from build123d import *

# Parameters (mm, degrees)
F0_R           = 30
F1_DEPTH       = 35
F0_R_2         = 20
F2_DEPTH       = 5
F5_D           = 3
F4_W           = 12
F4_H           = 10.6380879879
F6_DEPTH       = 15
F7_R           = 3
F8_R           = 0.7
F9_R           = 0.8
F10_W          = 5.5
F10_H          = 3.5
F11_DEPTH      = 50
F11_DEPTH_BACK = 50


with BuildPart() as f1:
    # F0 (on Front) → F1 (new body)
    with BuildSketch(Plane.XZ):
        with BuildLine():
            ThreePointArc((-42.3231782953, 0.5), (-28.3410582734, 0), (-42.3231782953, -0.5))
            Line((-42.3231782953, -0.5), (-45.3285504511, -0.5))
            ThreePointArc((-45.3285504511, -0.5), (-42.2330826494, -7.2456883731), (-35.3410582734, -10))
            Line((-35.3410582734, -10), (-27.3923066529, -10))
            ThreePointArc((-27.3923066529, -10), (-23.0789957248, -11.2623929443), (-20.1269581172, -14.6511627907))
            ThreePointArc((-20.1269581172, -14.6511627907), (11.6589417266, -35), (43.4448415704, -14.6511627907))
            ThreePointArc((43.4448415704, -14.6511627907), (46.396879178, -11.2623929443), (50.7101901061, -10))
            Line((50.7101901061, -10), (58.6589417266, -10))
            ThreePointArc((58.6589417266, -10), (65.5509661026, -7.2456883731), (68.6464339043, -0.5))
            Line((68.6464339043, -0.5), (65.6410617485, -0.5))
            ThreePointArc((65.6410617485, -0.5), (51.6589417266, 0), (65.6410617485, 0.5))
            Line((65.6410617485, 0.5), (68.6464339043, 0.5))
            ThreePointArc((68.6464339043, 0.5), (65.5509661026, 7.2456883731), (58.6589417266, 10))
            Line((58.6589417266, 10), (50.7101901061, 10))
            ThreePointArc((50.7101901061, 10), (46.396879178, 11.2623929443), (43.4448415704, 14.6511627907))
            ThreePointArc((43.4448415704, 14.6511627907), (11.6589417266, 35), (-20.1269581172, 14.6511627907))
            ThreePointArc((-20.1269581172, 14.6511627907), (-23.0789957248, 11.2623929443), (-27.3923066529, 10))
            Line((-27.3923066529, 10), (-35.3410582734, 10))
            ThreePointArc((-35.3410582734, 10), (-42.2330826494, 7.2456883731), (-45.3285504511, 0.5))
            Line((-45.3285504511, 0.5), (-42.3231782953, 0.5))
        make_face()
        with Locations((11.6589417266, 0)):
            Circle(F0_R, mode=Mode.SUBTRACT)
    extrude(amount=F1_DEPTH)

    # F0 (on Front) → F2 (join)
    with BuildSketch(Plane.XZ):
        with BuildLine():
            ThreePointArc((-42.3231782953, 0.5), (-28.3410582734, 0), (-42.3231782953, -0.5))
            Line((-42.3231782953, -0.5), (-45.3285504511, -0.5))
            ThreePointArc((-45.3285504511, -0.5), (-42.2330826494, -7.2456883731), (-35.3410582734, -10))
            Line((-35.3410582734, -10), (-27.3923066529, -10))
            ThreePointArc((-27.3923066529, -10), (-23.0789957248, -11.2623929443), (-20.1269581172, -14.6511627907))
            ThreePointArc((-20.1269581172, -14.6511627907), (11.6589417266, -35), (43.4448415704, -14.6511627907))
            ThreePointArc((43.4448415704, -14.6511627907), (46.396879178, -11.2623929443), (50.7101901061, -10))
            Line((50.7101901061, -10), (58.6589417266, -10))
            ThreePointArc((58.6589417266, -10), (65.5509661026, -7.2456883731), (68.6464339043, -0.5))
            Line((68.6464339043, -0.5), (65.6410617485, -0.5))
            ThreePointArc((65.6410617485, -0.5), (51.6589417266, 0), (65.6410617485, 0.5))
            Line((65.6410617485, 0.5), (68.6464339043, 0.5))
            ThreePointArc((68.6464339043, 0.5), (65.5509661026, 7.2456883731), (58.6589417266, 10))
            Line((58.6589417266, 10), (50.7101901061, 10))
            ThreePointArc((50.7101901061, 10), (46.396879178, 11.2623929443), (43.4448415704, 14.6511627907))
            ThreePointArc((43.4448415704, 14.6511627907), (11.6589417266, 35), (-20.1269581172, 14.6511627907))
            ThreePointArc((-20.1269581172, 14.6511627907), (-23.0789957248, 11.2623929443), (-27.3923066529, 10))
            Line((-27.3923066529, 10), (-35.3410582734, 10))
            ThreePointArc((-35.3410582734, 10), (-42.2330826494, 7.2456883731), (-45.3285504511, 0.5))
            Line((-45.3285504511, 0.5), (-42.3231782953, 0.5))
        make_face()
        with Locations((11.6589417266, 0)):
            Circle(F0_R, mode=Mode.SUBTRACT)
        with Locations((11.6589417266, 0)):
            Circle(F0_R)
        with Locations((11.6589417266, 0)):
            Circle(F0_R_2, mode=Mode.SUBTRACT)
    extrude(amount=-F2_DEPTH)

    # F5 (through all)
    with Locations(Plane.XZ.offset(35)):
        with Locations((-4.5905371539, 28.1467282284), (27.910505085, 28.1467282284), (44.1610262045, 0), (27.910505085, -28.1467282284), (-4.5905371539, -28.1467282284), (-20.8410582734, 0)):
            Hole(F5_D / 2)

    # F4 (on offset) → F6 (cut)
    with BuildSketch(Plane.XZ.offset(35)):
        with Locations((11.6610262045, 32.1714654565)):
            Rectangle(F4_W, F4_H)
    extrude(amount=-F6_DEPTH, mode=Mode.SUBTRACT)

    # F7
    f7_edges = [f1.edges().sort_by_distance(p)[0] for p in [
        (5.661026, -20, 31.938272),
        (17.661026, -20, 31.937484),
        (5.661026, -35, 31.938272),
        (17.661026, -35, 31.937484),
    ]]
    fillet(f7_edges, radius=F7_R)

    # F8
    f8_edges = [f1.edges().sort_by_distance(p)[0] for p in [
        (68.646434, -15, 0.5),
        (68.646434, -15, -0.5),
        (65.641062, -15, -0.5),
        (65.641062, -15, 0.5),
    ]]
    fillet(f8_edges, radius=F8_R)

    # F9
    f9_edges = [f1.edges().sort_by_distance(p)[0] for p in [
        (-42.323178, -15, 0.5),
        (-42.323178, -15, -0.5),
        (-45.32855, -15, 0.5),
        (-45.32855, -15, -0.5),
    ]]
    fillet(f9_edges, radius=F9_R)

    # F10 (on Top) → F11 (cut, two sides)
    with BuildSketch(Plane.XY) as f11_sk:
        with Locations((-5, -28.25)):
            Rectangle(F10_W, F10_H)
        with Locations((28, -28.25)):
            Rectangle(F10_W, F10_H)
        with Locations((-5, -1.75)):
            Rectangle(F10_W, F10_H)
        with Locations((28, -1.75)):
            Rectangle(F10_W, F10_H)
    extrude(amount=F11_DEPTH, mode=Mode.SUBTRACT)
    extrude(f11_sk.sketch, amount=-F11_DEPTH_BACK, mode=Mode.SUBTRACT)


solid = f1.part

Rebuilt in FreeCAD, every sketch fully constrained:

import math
import FreeCAD as App
import Part
import Sketcher

V = App.Vector


def edges_at(feature, points):
    """Names of the edges that pass closest to the given points."""
    edges = feature.Shape.Edges
    near = lambda p: min(range(len(edges)), key=lambda i: edges[i].distToShape(Part.Vertex(*p))[0])
    return sorted({f"Edge{near(p) + 1}" for p in points})


def add_polygon(sketch, points):
    """Adds a closed chain of lines whose ends are joined by coincident constraints."""
    first, n = sketch.GeometryCount, len(points)
    for a, b in zip(points, points[1:] + points[:1]):
        sketch.addGeometry(Part.LineSegment(App.Vector(*a, 0), App.Vector(*b, 0)), False)
    for i in range(n):
        sketch.addConstraint(Sketcher.Constraint("Coincident", first + i, 2, first + (i + 1) % n, 1))

doc = App.newDocument("Part")
body = doc.addObject("PartDesign::Body", "Body")

# Sketch on XZ plane
sketch1 = doc.addObject("Sketcher::SketchObject", "Sketch")
body.addObject(sketch1)
sketch1.AttachmentSupport = (doc.XZ_Plane, [""])
sketch1.MapMode = "FlatFace"
sketch1.addGeometry(Part.ArcOfCircle(Part.Circle(V(-35.341058, 0, 0), V(0, 0, 1), 7), math.radians(-175.903956), math.radians(175.903956)), False)
sketch1.addGeometry(Part.LineSegment(V(-42.323178, -0.5, 0), V(-45.32855, -0.5, 0)), False)
sketch1.addGeometry(Part.ArcOfCircle(Part.Circle(V(-35.341058, 0, 0), V(0, 0, 1), 10), math.radians(-177.134016), math.radians(-90)), False)
sketch1.addGeometry(Part.LineSegment(V(-35.341058, -10, 0), V(-27.392307, -10, 0)), False)
sketch1.addGeometry(Part.ArcOfCircle(Part.Circle(V(-27.392307, -18, 0), V(0, 0, 1), 8), math.radians(24.746525), math.radians(90)), False)
sketch1.addGeometry(Part.ArcOfCircle(Part.Circle(V(11.658942, 0, 0), V(0, 0, 1), 35), math.radians(-155.253475), math.radians(-24.746525)), False)
sketch1.addGeometry(Part.ArcOfCircle(Part.Circle(V(50.71019, -18, 0), V(0, 0, 1), 8), math.radians(90), math.radians(155.253475)), False)
sketch1.addGeometry(Part.LineSegment(V(50.71019, -10, 0), V(58.658942, -10, 0)), False)
sketch1.addGeometry(Part.ArcOfCircle(Part.Circle(V(58.658942, 0, 0), V(0, 0, 1), 10), math.radians(-90), math.radians(-2.865984)), False)
sketch1.addGeometry(Part.LineSegment(V(68.646434, -0.5, 0), V(65.641062, -0.5, 0)), False)
sketch1.addGeometry(Part.ArcOfCircle(Part.Circle(V(58.658942, 0, 0), V(0, 0, 1), 7), math.radians(4.096044), math.radians(355.903956)), False)
sketch1.addGeometry(Part.LineSegment(V(65.641062, 0.5, 0), V(68.646434, 0.5, 0)), False)
sketch1.addGeometry(Part.ArcOfCircle(Part.Circle(V(58.658942, 0, 0), V(0, 0, 1), 10), math.radians(2.865984), math.radians(90)), False)
sketch1.addGeometry(Part.LineSegment(V(58.658942, 10, 0), V(50.71019, 10, 0)), False)
sketch1.addGeometry(Part.ArcOfCircle(Part.Circle(V(50.71019, 18, 0), V(0, 0, 1), 8), math.radians(-155.253475), math.radians(-90)), False)
sketch1.addGeometry(Part.ArcOfCircle(Part.Circle(V(11.658942, 0, 0), V(0, 0, 1), 35), math.radians(24.746525), math.radians(155.253475)), False)
sketch1.addGeometry(Part.ArcOfCircle(Part.Circle(V(-27.392307, 18, 0), V(0, 0, 1), 8), math.radians(-90), math.radians(-24.746525)), False)
sketch1.addGeometry(Part.LineSegment(V(-27.392307, 10, 0), V(-35.341058, 10, 0)), False)
sketch1.addGeometry(Part.ArcOfCircle(Part.Circle(V(-35.341058, 0, 0), V(0, 0, 1), 10), math.radians(90), math.radians(177.134016)), False)
sketch1.addGeometry(Part.LineSegment(V(-45.32855, 0.5, 0), V(-42.323178, 0.5, 0)), False)
sketch1.addGeometry(Part.Circle(V(11.658942, 0, 0), V(0, 0, 1), 30), False)
sketch1.addConstraint(Sketcher.Constraint("Coincident", 0, 1, 1, 1))
sketch1.addConstraint(Sketcher.Constraint("Coincident", 1, 2, 2, 1))
sketch1.addConstraint(Sketcher.Constraint("Tangent", 2, 2, 3, 1))
sketch1.addConstraint(Sketcher.Constraint("Tangent", 3, 2, 4, 2))
sketch1.addConstraint(Sketcher.Constraint("Tangent", 4, 1, 5, 1))
sketch1.addConstraint(Sketcher.Constraint("Tangent", 5, 2, 6, 2))
sketch1.addConstraint(Sketcher.Constraint("Tangent", 6, 1, 7, 1))
sketch1.addConstraint(Sketcher.Constraint("Tangent", 7, 2, 8, 1))
sketch1.addConstraint(Sketcher.Constraint("Coincident", 8, 2, 9, 1))
sketch1.addConstraint(Sketcher.Constraint("Coincident", 9, 2, 10, 2))
sketch1.addConstraint(Sketcher.Constraint("Coincident", 10, 1, 11, 1))
sketch1.addConstraint(Sketcher.Constraint("Coincident", 11, 2, 12, 1))
sketch1.addConstraint(Sketcher.Constraint("Tangent", 12, 2, 13, 1))
sketch1.addConstraint(Sketcher.Constraint("Tangent", 13, 2, 14, 2))
sketch1.addConstraint(Sketcher.Constraint("Tangent", 14, 1, 15, 1))
sketch1.addConstraint(Sketcher.Constraint("Tangent", 15, 2, 16, 2))
sketch1.addConstraint(Sketcher.Constraint("Tangent", 16, 1, 17, 1))
sketch1.addConstraint(Sketcher.Constraint("Tangent", 17, 2, 18, 1))
sketch1.addConstraint(Sketcher.Constraint("Coincident", 18, 2, 19, 1))
sketch1.addConstraint(Sketcher.Constraint("Coincident", 19, 2, 0, 2))
sketch1.addConstraint(Sketcher.Constraint("Horizontal", 1))
sketch1.addConstraint(Sketcher.Constraint("Horizontal", 3))
sketch1.addConstraint(Sketcher.Constraint("Horizontal", 7))
sketch1.addConstraint(Sketcher.Constraint("Horizontal", 9))
sketch1.addConstraint(Sketcher.Constraint("Horizontal", 11))
sketch1.addConstraint(Sketcher.Constraint("Horizontal", 13))
sketch1.addConstraint(Sketcher.Constraint("Horizontal", 17))
sketch1.addConstraint(Sketcher.Constraint("Horizontal", 19))
sketch1.addConstraint(Sketcher.Constraint("Coincident", 2, 3, 0, 3))
sketch1.addConstraint(Sketcher.Constraint("Coincident", 10, 3, 8, 3))
sketch1.addConstraint(Sketcher.Constraint("Coincident", 12, 3, 8, 3))
sketch1.addConstraint(Sketcher.Constraint("Coincident", 15, 3, 5, 3))
sketch1.addConstraint(Sketcher.Constraint("Coincident", 18, 3, 0, 3))
sketch1.addConstraint(Sketcher.Constraint("Coincident", 20, 3, 5, 3))
sketch1.addConstraint(Sketcher.Constraint("Equal", 4, 6))
sketch1.addConstraint(Sketcher.Constraint("Equal", 2, 8))
sketch1.addConstraint(Sketcher.Constraint("Equal", 0, 10))
sketch1.addConstraint(Sketcher.Constraint("Equal", 8, 12))
sketch1.addConstraint(Sketcher.Constraint("Equal", 6, 14))
sketch1.addConstraint(Sketcher.Constraint("Equal", 5, 15))
sketch1.addConstraint(Sketcher.Constraint("Equal", 14, 16))
sketch1.addConstraint(Sketcher.Constraint("Equal", 12, 18))
sketch1.addConstraint(Sketcher.Constraint("Symmetric", 6, 3, 14, 3, -1))
sketch1.addConstraint(Sketcher.Constraint("Symmetric", 1, 2, 18, 2, -1))
sketch1.addConstraint(Sketcher.Constraint("Horizontal", 1, 2, 8, 2))
sketch1.addConstraint(Sketcher.Constraint("Horizontal", 11, 2, 18, 2))
sketch1.addConstraint(Sketcher.Constraint("Equal", 3, 7))
sketch1.addConstraint(Sketcher.Constraint("Diameter", 20, 60.0))
sketch1.addConstraint(Sketcher.Constraint("Radius", 0, 7.0))
sketch1.addConstraint(Sketcher.Constraint("Radius", 2, 10.0))
sketch1.addConstraint(Sketcher.Constraint("Radius", 4, 8.0))
sketch1.addConstraint(Sketcher.Constraint("Radius", 5, 35.0))
sketch1.addConstraint(Sketcher.Constraint("DistanceX", 0, 3, 5, 3, 47.0))
sketch1.addConstraint(Sketcher.Constraint("DistanceY", 9, 2, 10, 1, 1.0))
sketch1.addConstraint(Sketcher.Constraint("DistanceX", 0, 3, -1, 1, 35.341058))
pad1 = doc.addObject("PartDesign::Pad", "Pad")
body.addObject(pad1)
pad1.Profile = sketch1
pad1.Length = 35

# Sketch on XZ plane
sketch2 = doc.addObject("Sketcher::SketchObject", "Sketch001")
body.addObject(sketch2)
sketch2.AttachmentSupport = (doc.XZ_Plane, [""])
sketch2.MapMode = "FlatFace"
sketch2.addGeometry(Part.ArcOfCircle(Part.Circle(V(-35.341058, 0, 0), V(0, 0, 1), 7), math.radians(-175.903956), math.radians(175.903956)), False)
sketch2.addGeometry(Part.LineSegment(V(-42.323178, -0.5, 0), V(-45.32855, -0.5, 0)), False)
sketch2.addGeometry(Part.ArcOfCircle(Part.Circle(V(-35.341058, 0, 0), V(0, 0, 1), 10), math.radians(-177.134016), math.radians(-90)), False)
sketch2.addGeometry(Part.LineSegment(V(-35.341058, -10, 0), V(-27.392307, -10, 0)), False)
sketch2.addGeometry(Part.ArcOfCircle(Part.Circle(V(-27.392307, -18, 0), V(0, 0, 1), 8), math.radians(24.746525), math.radians(90)), False)
sketch2.addGeometry(Part.ArcOfCircle(Part.Circle(V(11.658942, 0, 0), V(0, 0, 1), 35), math.radians(-155.253475), math.radians(-24.746525)), False)
sketch2.addGeometry(Part.ArcOfCircle(Part.Circle(V(50.71019, -18, 0), V(0, 0, 1), 8), math.radians(90), math.radians(155.253475)), False)
sketch2.addGeometry(Part.LineSegment(V(50.71019, -10, 0), V(58.658942, -10, 0)), False)
sketch2.addGeometry(Part.ArcOfCircle(Part.Circle(V(58.658942, 0, 0), V(0, 0, 1), 10), math.radians(-90), math.radians(-2.865984)), False)
sketch2.addGeometry(Part.LineSegment(V(68.646434, -0.5, 0), V(65.641062, -0.5, 0)), False)
sketch2.addGeometry(Part.ArcOfCircle(Part.Circle(V(58.658942, 0, 0), V(0, 0, 1), 7), math.radians(4.096044), math.radians(355.903956)), False)
sketch2.addGeometry(Part.LineSegment(V(65.641062, 0.5, 0), V(68.646434, 0.5, 0)), False)
sketch2.addGeometry(Part.ArcOfCircle(Part.Circle(V(58.658942, 0, 0), V(0, 0, 1), 10), math.radians(2.865984), math.radians(90)), False)
sketch2.addGeometry(Part.LineSegment(V(58.658942, 10, 0), V(50.71019, 10, 0)), False)
sketch2.addGeometry(Part.ArcOfCircle(Part.Circle(V(50.71019, 18, 0), V(0, 0, 1), 8), math.radians(-155.253475), math.radians(-90)), False)
sketch2.addGeometry(Part.ArcOfCircle(Part.Circle(V(11.658942, 0, 0), V(0, 0, 1), 35), math.radians(24.746525), math.radians(155.253475)), False)
sketch2.addGeometry(Part.ArcOfCircle(Part.Circle(V(-27.392307, 18, 0), V(0, 0, 1), 8), math.radians(-90), math.radians(-24.746525)), False)
sketch2.addGeometry(Part.LineSegment(V(-27.392307, 10, 0), V(-35.341058, 10, 0)), False)
sketch2.addGeometry(Part.ArcOfCircle(Part.Circle(V(-35.341058, 0, 0), V(0, 0, 1), 10), math.radians(90), math.radians(177.134016)), False)
sketch2.addGeometry(Part.LineSegment(V(-45.32855, 0.5, 0), V(-42.323178, 0.5, 0)), False)
sketch2.addGeometry(Part.Circle(V(11.658942, 0, 0), V(0, 0, 1), 20), False)
sketch2.addConstraint(Sketcher.Constraint("Coincident", 0, 1, 1, 1))
sketch2.addConstraint(Sketcher.Constraint("Coincident", 1, 2, 2, 1))
sketch2.addConstraint(Sketcher.Constraint("Tangent", 2, 2, 3, 1))
sketch2.addConstraint(Sketcher.Constraint("Tangent", 3, 2, 4, 2))
sketch2.addConstraint(Sketcher.Constraint("Tangent", 4, 1, 5, 1))
sketch2.addConstraint(Sketcher.Constraint("Tangent", 5, 2, 6, 2))
sketch2.addConstraint(Sketcher.Constraint("Tangent", 6, 1, 7, 1))
sketch2.addConstraint(Sketcher.Constraint("Tangent", 7, 2, 8, 1))
sketch2.addConstraint(Sketcher.Constraint("Coincident", 8, 2, 9, 1))
sketch2.addConstraint(Sketcher.Constraint("Coincident", 9, 2, 10, 2))
sketch2.addConstraint(Sketcher.Constraint("Coincident", 10, 1, 11, 1))
sketch2.addConstraint(Sketcher.Constraint("Coincident", 11, 2, 12, 1))
sketch2.addConstraint(Sketcher.Constraint("Tangent", 12, 2, 13, 1))
sketch2.addConstraint(Sketcher.Constraint("Tangent", 13, 2, 14, 2))
sketch2.addConstraint(Sketcher.Constraint("Tangent", 14, 1, 15, 1))
sketch2.addConstraint(Sketcher.Constraint("Tangent", 15, 2, 16, 2))
sketch2.addConstraint(Sketcher.Constraint("Tangent", 16, 1, 17, 1))
sketch2.addConstraint(Sketcher.Constraint("Tangent", 17, 2, 18, 1))
sketch2.addConstraint(Sketcher.Constraint("Coincident", 18, 2, 19, 1))
sketch2.addConstraint(Sketcher.Constraint("Coincident", 19, 2, 0, 2))
sketch2.addConstraint(Sketcher.Constraint("Horizontal", 1))
sketch2.addConstraint(Sketcher.Constraint("Horizontal", 3))
sketch2.addConstraint(Sketcher.Constraint("Horizontal", 7))
sketch2.addConstraint(Sketcher.Constraint("Horizontal", 9))
sketch2.addConstraint(Sketcher.Constraint("Horizontal", 11))
sketch2.addConstraint(Sketcher.Constraint("Horizontal", 13))
sketch2.addConstraint(Sketcher.Constraint("Horizontal", 17))
sketch2.addConstraint(Sketcher.Constraint("Horizontal", 19))
sketch2.addConstraint(Sketcher.Constraint("Coincident", 2, 3, 0, 3))
sketch2.addConstraint(Sketcher.Constraint("Coincident", 10, 3, 8, 3))
sketch2.addConstraint(Sketcher.Constraint("Coincident", 12, 3, 8, 3))
sketch2.addConstraint(Sketcher.Constraint("Coincident", 15, 3, 5, 3))
sketch2.addConstraint(Sketcher.Constraint("Coincident", 18, 3, 0, 3))
sketch2.addConstraint(Sketcher.Constraint("Coincident", 20, 3, 5, 3))
sketch2.addConstraint(Sketcher.Constraint("Equal", 4, 6))
sketch2.addConstraint(Sketcher.Constraint("Equal", 2, 8))
sketch2.addConstraint(Sketcher.Constraint("Equal", 0, 10))
sketch2.addConstraint(Sketcher.Constraint("Equal", 8, 12))
sketch2.addConstraint(Sketcher.Constraint("Equal", 6, 14))
sketch2.addConstraint(Sketcher.Constraint("Equal", 5, 15))
sketch2.addConstraint(Sketcher.Constraint("Equal", 14, 16))
sketch2.addConstraint(Sketcher.Constraint("Equal", 12, 18))
sketch2.addConstraint(Sketcher.Constraint("Symmetric", 6, 3, 14, 3, -1))
sketch2.addConstraint(Sketcher.Constraint("Symmetric", 1, 2, 18, 2, -1))
sketch2.addConstraint(Sketcher.Constraint("Horizontal", 1, 2, 8, 2))
sketch2.addConstraint(Sketcher.Constraint("Horizontal", 11, 2, 18, 2))
sketch2.addConstraint(Sketcher.Constraint("Equal", 3, 7))
sketch2.addConstraint(Sketcher.Constraint("Diameter", 20, 40.0))
sketch2.addConstraint(Sketcher.Constraint("Radius", 0, 7.0))
sketch2.addConstraint(Sketcher.Constraint("Radius", 2, 10.0))
sketch2.addConstraint(Sketcher.Constraint("Radius", 4, 8.0))
sketch2.addConstraint(Sketcher.Constraint("Radius", 5, 35.0))
sketch2.addConstraint(Sketcher.Constraint("DistanceX", 0, 3, 5, 3, 47.0))
sketch2.addConstraint(Sketcher.Constraint("DistanceY", 9, 2, 10, 1, 1.0))
sketch2.addConstraint(Sketcher.Constraint("DistanceX", 0, 3, -1, 1, 35.341058))
pad2 = doc.addObject("PartDesign::Pad", "Pad001")
body.addObject(pad2)
pad2.Profile = sketch2
pad2.Length = 5
pad2.Reversed = True

# Sketch on XZ plane
sketch3 = doc.addObject("Sketcher::SketchObject", "Sketch002")
body.addObject(sketch3)
sketch3.AttachmentSupport = (doc.XZ_Plane, [""])
sketch3.MapMode = "FlatFace"
sketch3.AttachmentOffset = App.Placement(V(0, 0, 35), App.Rotation())
sketch3.addGeometry(Part.Circle(V(-4.590537, 28.146728, 0), V(0, 0, 1), 1.5), False)
sketch3.addGeometry(Part.Circle(V(27.910505, 28.146728, 0), V(0, 0, 1), 1.5), False)
sketch3.addGeometry(Part.Circle(V(44.161026, 0, 0), V(0, 0, 1), 1.5), False)
sketch3.addGeometry(Part.Circle(V(27.910505, -28.146728, 0), V(0, 0, 1), 1.5), False)
sketch3.addGeometry(Part.Circle(V(-4.590537, -28.146728, 0), V(0, 0, 1), 1.5), False)
sketch3.addGeometry(Part.Circle(V(-20.841058, 0, 0), V(0, 0, 1), 1.5), False)
sketch3.addConstraint(Sketcher.Constraint("Equal", 0, 1))
sketch3.addConstraint(Sketcher.Constraint("Equal", 1, 2))
sketch3.addConstraint(Sketcher.Constraint("Equal", 2, 3))
sketch3.addConstraint(Sketcher.Constraint("Equal", 3, 4))
sketch3.addConstraint(Sketcher.Constraint("Equal", 4, 5))
sketch3.addConstraint(Sketcher.Constraint("Symmetric", 1, 3, 3, 3, -1))
sketch3.addConstraint(Sketcher.Constraint("Symmetric", 0, 3, 4, 3, -1))
sketch3.addConstraint(Sketcher.Constraint("PointOnObject", 2, 3, -1))
sketch3.addConstraint(Sketcher.Constraint("PointOnObject", 5, 3, -1))
sketch3.addConstraint(Sketcher.Constraint("Horizontal", 0, 3, 1, 3))
sketch3.addConstraint(Sketcher.Constraint("Diameter", 0, 3.0))
sketch3.addConstraint(Sketcher.Constraint("DistanceY", -1, 1, 0, 3, 28.146728))
sketch3.addConstraint(Sketcher.Constraint("DistanceX", 5, 3, -1, 1, 20.841058))
sketch3.addConstraint(Sketcher.Constraint("DistanceX", 1, 3, 2, 3, 16.250521))
sketch3.addConstraint(Sketcher.Constraint("DistanceX", 5, 3, 0, 3, 16.250521))
sketch3.addConstraint(Sketcher.Constraint("DistanceX", -1, 1, 1, 3, 27.910505))
doc.recompute()
hole = doc.addObject("PartDesign::Hole", "Hole")
body.addObject(hole)
hole.Profile = sketch3
hole.ThreadType = "None"
hole.Diameter = 3
hole.DepthType = "ThroughAll"

# Sketch on XZ plane
sketch4 = doc.addObject("Sketcher::SketchObject", "Sketch003")
body.addObject(sketch4)
sketch4.AttachmentSupport = (doc.XZ_Plane, [""])
sketch4.MapMode = "FlatFace"
sketch4.AttachmentOffset = App.Placement(V(0, 0, 35), App.Rotation())
add_polygon(sketch4, [(5.661026, 37.490509), (5.661026, 26.852421), (17.661026, 26.852421), (17.661026, 37.490509)])  # lines 0-3
sketch4.addConstraint(Sketcher.Constraint("Vertical", 0))
sketch4.addConstraint(Sketcher.Constraint("Horizontal", 1))
sketch4.addConstraint(Sketcher.Constraint("Vertical", 2))
sketch4.addConstraint(Sketcher.Constraint("Horizontal", 3))
sketch4.addConstraint(Sketcher.Constraint("DistanceX", 1, 1, 1, 2, 12.0))
sketch4.addConstraint(Sketcher.Constraint("DistanceY", 0, 2, 0, 1, 10.638088))
sketch4.addConstraint(Sketcher.Constraint("DistanceY", -1, 1, 0, 2, 26.852421))
sketch4.addConstraint(Sketcher.Constraint("DistanceX", -1, 1, 0, 2, 5.661026))
pocket1 = doc.addObject("PartDesign::Pocket", "Pocket")
body.addObject(pocket1)
pocket1.Profile = sketch4
pocket1.Length = 15
doc.recompute()

fillet = doc.addObject("PartDesign::Fillet", "Fillet")
body.addObject(fillet)
fillet.Base = (pocket1, edges_at(pocket1, [
    (5.661, -20, 31.938),
    (17.661, -20, 31.937),
    (5.661, -35, 31.938),
    (17.661, -35, 31.937),
]))
fillet.Radius = 3
doc.recompute()

fillet2 = doc.addObject("PartDesign::Fillet", "Fillet001")
body.addObject(fillet2)
fillet2.Base = (fillet, edges_at(fillet, [
    (68.646, -15, 0.5),
    (68.646, -15, -0.5),
    (65.641, -15, -0.5),
    (65.641, -15, 0.5),
]))
fillet2.Radius = 0.7
doc.recompute()

fillet3 = doc.addObject("PartDesign::Fillet", "Fillet002")
body.addObject(fillet3)
fillet3.Base = (fillet2, edges_at(fillet2, [
    (-42.323, -15, 0.5),
    (-42.323, -15, -0.5),
    (-45.329, -15, 0.5),
    (-45.329, -15, -0.5),
]))
fillet3.Radius = 0.8

# Sketch on XY plane
sketch5 = doc.addObject("Sketcher::SketchObject", "Sketch004")
body.addObject(sketch5)
sketch5.AttachmentSupport = (doc.XY_Plane, [""])
sketch5.MapMode = "FlatFace"
add_polygon(sketch5, [(-7.75, -26.5), (-7.75, -30), (-2.25, -30), (-2.25, -26.5)])  # lines 0-3
add_polygon(sketch5, [(25.25, -26.5), (25.25, -30), (30.75, -30), (30.75, -26.5)])  # lines 4-7
add_polygon(sketch5, [(-7.75, 0), (-7.75, -3.5), (-2.25, -3.5), (-2.25, 0)])  # lines 8-11
add_polygon(sketch5, [(25.25, 0), (25.25, -3.5), (30.75, -3.5), (30.75, 0)])  # lines 12-15
sketch5.addConstraint(Sketcher.Constraint("Vertical", 0))
sketch5.addConstraint(Sketcher.Constraint("Horizontal", 1))
sketch5.addConstraint(Sketcher.Constraint("Vertical", 2))
sketch5.addConstraint(Sketcher.Constraint("Horizontal", 3))
sketch5.addConstraint(Sketcher.Constraint("Vertical", 4))
sketch5.addConstraint(Sketcher.Constraint("Horizontal", 5))
sketch5.addConstraint(Sketcher.Constraint("Vertical", 6))
sketch5.addConstraint(Sketcher.Constraint("Horizontal", 7))
sketch5.addConstraint(Sketcher.Constraint("Vertical", 8))
sketch5.addConstraint(Sketcher.Constraint("Horizontal", 9))
sketch5.addConstraint(Sketcher.Constraint("Vertical", 10))
sketch5.addConstraint(Sketcher.Constraint("Horizontal", 11))
sketch5.addConstraint(Sketcher.Constraint("Vertical", 12))
sketch5.addConstraint(Sketcher.Constraint("Horizontal", 13))
sketch5.addConstraint(Sketcher.Constraint("Vertical", 14))
sketch5.addConstraint(Sketcher.Constraint("Horizontal", 15))
sketch5.addConstraint(Sketcher.Constraint("PointOnObject", 10, 2, -1))
sketch5.addConstraint(Sketcher.Constraint("PointOnObject", 14, 2, -1))
sketch5.addConstraint(Sketcher.Constraint("Horizontal", 1, 2, 4, 2))
sketch5.addConstraint(Sketcher.Constraint("Horizontal", 3, 2, 6, 2))
sketch5.addConstraint(Sketcher.Constraint("Horizontal", 9, 2, 12, 2))
sketch5.addConstraint(Sketcher.Constraint("Vertical", 3, 2, 8, 2))
sketch5.addConstraint(Sketcher.Constraint("Vertical", 2, 2, 9, 2))
sketch5.addConstraint(Sketcher.Constraint("Vertical", 7, 2, 12, 2))
sketch5.addConstraint(Sketcher.Constraint("Vertical", 6, 2, 13, 2))
sketch5.addConstraint(Sketcher.Constraint("Equal", 3, 5))
sketch5.addConstraint(Sketcher.Constraint("Equal", 6, 8))
sketch5.addConstraint(Sketcher.Constraint("DistanceX", 1, 1, 1, 2, 5.5))
sketch5.addConstraint(Sketcher.Constraint("DistanceY", 0, 2, 0, 1, 3.5))
sketch5.addConstraint(Sketcher.Constraint("DistanceY", 0, 2, -1, 1, 30.0))
sketch5.addConstraint(Sketcher.Constraint("DistanceX", 0, 2, 4, 2, 33.0))
sketch5.addConstraint(Sketcher.Constraint("DistanceX", 0, 2, -1, 1, 7.75))
pocket2 = doc.addObject("PartDesign::Pocket", "Pocket001")
body.addObject(pocket2)
pocket2.Profile = sketch5
pocket2.Type = "ThroughAll"
pocket2.Midplane = True

doc.recompute()
